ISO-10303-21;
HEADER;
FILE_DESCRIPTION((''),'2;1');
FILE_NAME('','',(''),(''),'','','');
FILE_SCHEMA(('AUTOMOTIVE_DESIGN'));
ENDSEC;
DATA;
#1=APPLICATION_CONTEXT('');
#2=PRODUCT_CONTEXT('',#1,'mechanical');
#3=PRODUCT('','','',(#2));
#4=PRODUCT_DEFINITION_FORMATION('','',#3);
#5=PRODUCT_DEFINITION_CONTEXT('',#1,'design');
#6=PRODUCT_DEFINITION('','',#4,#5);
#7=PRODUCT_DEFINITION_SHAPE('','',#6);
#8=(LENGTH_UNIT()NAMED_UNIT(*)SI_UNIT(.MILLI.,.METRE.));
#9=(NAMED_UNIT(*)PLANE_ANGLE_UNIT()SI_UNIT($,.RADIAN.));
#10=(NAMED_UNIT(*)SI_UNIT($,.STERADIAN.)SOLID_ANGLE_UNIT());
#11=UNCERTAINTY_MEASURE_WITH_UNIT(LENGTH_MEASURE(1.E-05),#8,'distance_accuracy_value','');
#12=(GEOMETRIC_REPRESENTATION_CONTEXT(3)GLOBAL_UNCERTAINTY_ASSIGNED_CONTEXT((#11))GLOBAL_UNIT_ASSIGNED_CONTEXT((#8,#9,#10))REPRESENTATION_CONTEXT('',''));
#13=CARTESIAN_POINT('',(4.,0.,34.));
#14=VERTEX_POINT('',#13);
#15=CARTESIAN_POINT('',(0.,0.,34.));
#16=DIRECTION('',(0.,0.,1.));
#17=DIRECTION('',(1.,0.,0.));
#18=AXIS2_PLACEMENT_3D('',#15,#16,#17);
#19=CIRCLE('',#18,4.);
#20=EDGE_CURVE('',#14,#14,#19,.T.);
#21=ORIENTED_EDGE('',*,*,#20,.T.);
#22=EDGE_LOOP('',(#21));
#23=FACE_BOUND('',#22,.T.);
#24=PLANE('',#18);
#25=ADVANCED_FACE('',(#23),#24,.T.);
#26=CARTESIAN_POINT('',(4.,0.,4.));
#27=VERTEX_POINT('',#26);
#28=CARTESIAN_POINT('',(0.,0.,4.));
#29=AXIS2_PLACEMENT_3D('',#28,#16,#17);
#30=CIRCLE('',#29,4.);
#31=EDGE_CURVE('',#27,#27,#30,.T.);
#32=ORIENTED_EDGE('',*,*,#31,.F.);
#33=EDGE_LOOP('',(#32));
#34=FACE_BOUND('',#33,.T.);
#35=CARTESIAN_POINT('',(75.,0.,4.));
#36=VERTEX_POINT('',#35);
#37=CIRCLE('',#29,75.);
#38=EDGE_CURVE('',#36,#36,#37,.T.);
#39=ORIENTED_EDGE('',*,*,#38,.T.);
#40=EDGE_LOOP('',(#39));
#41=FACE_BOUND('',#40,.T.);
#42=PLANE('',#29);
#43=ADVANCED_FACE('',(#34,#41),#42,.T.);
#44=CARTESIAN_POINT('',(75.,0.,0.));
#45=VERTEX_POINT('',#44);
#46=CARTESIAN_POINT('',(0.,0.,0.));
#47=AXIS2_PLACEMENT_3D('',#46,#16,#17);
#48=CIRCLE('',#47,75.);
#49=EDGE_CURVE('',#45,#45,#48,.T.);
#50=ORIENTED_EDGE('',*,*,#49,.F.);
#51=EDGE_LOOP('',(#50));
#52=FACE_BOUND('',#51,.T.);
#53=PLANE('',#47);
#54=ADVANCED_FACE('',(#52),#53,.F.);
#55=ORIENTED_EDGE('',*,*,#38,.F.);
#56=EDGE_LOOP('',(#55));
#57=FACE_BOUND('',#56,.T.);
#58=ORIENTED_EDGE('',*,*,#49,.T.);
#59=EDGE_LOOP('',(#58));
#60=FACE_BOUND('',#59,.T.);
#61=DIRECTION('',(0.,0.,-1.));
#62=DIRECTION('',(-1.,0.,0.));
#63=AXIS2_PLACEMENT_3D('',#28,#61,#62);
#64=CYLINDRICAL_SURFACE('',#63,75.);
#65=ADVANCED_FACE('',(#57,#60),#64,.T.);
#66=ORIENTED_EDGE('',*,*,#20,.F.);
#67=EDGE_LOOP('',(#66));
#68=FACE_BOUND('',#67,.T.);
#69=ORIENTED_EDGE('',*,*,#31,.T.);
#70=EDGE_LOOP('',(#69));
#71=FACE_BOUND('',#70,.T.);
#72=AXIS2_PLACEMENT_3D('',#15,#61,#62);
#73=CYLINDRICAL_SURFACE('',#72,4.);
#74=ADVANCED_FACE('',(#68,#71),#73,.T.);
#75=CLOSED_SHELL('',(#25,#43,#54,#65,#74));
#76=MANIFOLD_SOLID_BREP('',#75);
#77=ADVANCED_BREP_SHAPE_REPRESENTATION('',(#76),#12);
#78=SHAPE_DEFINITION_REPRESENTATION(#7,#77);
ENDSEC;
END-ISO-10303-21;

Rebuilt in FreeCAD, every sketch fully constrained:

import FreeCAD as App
import Part
import Sketcher

doc = App.newDocument("Part")
body = doc.addObject("PartDesign::Body", "Body")

# Sketch on XY plane
sketch1 = doc.addObject("Sketcher::SketchObject", "Sketch")
body.addObject(sketch1)
sketch1.AttachmentSupport = (doc.XY_Plane, [""])
sketch1.MapMode = "FlatFace"
sketch1.addGeometry(Part.Circle(App.Vector(0, 0, 0), App.Vector(0, 0, 1), 75), False)
sketch1.addConstraint([
    Sketcher.Constraint("Coincident", 0, 3, -1, 1),
    Sketcher.Constraint("Diameter", 0, 150.0),
])
pad1 = doc.addObject("PartDesign::Pad", "Pad")
body.addObject(pad1)
pad1.Profile = sketch1
pad1.Length = 4

# Sketch on XY plane
sketch2 = doc.addObject("Sketcher::SketchObject", "Sketch001")
body.addObject(sketch2)
sketch2.AttachmentSupport = (doc.XY_Plane, [""])
sketch2.MapMode = "FlatFace"
sketch2.AttachmentOffset = App.Placement(App.Vector(0, 0, 4), App.Rotation())
sketch2.addGeometry(Part.Circle(App.Vector(0, 0, 0), App.Vector(0, 0, 1), 4), False)
sketch2.addConstraint([
    Sketcher.Constraint("Coincident", 0, 3, -1, 1),
    Sketcher.Constraint("Diameter", 0, 8.0),
])
pad2 = doc.addObject("PartDesign::Pad", "Pad001")
body.addObject(pad2)
pad2.Profile = sketch2
pad2.Length = 30

doc.recompute()
